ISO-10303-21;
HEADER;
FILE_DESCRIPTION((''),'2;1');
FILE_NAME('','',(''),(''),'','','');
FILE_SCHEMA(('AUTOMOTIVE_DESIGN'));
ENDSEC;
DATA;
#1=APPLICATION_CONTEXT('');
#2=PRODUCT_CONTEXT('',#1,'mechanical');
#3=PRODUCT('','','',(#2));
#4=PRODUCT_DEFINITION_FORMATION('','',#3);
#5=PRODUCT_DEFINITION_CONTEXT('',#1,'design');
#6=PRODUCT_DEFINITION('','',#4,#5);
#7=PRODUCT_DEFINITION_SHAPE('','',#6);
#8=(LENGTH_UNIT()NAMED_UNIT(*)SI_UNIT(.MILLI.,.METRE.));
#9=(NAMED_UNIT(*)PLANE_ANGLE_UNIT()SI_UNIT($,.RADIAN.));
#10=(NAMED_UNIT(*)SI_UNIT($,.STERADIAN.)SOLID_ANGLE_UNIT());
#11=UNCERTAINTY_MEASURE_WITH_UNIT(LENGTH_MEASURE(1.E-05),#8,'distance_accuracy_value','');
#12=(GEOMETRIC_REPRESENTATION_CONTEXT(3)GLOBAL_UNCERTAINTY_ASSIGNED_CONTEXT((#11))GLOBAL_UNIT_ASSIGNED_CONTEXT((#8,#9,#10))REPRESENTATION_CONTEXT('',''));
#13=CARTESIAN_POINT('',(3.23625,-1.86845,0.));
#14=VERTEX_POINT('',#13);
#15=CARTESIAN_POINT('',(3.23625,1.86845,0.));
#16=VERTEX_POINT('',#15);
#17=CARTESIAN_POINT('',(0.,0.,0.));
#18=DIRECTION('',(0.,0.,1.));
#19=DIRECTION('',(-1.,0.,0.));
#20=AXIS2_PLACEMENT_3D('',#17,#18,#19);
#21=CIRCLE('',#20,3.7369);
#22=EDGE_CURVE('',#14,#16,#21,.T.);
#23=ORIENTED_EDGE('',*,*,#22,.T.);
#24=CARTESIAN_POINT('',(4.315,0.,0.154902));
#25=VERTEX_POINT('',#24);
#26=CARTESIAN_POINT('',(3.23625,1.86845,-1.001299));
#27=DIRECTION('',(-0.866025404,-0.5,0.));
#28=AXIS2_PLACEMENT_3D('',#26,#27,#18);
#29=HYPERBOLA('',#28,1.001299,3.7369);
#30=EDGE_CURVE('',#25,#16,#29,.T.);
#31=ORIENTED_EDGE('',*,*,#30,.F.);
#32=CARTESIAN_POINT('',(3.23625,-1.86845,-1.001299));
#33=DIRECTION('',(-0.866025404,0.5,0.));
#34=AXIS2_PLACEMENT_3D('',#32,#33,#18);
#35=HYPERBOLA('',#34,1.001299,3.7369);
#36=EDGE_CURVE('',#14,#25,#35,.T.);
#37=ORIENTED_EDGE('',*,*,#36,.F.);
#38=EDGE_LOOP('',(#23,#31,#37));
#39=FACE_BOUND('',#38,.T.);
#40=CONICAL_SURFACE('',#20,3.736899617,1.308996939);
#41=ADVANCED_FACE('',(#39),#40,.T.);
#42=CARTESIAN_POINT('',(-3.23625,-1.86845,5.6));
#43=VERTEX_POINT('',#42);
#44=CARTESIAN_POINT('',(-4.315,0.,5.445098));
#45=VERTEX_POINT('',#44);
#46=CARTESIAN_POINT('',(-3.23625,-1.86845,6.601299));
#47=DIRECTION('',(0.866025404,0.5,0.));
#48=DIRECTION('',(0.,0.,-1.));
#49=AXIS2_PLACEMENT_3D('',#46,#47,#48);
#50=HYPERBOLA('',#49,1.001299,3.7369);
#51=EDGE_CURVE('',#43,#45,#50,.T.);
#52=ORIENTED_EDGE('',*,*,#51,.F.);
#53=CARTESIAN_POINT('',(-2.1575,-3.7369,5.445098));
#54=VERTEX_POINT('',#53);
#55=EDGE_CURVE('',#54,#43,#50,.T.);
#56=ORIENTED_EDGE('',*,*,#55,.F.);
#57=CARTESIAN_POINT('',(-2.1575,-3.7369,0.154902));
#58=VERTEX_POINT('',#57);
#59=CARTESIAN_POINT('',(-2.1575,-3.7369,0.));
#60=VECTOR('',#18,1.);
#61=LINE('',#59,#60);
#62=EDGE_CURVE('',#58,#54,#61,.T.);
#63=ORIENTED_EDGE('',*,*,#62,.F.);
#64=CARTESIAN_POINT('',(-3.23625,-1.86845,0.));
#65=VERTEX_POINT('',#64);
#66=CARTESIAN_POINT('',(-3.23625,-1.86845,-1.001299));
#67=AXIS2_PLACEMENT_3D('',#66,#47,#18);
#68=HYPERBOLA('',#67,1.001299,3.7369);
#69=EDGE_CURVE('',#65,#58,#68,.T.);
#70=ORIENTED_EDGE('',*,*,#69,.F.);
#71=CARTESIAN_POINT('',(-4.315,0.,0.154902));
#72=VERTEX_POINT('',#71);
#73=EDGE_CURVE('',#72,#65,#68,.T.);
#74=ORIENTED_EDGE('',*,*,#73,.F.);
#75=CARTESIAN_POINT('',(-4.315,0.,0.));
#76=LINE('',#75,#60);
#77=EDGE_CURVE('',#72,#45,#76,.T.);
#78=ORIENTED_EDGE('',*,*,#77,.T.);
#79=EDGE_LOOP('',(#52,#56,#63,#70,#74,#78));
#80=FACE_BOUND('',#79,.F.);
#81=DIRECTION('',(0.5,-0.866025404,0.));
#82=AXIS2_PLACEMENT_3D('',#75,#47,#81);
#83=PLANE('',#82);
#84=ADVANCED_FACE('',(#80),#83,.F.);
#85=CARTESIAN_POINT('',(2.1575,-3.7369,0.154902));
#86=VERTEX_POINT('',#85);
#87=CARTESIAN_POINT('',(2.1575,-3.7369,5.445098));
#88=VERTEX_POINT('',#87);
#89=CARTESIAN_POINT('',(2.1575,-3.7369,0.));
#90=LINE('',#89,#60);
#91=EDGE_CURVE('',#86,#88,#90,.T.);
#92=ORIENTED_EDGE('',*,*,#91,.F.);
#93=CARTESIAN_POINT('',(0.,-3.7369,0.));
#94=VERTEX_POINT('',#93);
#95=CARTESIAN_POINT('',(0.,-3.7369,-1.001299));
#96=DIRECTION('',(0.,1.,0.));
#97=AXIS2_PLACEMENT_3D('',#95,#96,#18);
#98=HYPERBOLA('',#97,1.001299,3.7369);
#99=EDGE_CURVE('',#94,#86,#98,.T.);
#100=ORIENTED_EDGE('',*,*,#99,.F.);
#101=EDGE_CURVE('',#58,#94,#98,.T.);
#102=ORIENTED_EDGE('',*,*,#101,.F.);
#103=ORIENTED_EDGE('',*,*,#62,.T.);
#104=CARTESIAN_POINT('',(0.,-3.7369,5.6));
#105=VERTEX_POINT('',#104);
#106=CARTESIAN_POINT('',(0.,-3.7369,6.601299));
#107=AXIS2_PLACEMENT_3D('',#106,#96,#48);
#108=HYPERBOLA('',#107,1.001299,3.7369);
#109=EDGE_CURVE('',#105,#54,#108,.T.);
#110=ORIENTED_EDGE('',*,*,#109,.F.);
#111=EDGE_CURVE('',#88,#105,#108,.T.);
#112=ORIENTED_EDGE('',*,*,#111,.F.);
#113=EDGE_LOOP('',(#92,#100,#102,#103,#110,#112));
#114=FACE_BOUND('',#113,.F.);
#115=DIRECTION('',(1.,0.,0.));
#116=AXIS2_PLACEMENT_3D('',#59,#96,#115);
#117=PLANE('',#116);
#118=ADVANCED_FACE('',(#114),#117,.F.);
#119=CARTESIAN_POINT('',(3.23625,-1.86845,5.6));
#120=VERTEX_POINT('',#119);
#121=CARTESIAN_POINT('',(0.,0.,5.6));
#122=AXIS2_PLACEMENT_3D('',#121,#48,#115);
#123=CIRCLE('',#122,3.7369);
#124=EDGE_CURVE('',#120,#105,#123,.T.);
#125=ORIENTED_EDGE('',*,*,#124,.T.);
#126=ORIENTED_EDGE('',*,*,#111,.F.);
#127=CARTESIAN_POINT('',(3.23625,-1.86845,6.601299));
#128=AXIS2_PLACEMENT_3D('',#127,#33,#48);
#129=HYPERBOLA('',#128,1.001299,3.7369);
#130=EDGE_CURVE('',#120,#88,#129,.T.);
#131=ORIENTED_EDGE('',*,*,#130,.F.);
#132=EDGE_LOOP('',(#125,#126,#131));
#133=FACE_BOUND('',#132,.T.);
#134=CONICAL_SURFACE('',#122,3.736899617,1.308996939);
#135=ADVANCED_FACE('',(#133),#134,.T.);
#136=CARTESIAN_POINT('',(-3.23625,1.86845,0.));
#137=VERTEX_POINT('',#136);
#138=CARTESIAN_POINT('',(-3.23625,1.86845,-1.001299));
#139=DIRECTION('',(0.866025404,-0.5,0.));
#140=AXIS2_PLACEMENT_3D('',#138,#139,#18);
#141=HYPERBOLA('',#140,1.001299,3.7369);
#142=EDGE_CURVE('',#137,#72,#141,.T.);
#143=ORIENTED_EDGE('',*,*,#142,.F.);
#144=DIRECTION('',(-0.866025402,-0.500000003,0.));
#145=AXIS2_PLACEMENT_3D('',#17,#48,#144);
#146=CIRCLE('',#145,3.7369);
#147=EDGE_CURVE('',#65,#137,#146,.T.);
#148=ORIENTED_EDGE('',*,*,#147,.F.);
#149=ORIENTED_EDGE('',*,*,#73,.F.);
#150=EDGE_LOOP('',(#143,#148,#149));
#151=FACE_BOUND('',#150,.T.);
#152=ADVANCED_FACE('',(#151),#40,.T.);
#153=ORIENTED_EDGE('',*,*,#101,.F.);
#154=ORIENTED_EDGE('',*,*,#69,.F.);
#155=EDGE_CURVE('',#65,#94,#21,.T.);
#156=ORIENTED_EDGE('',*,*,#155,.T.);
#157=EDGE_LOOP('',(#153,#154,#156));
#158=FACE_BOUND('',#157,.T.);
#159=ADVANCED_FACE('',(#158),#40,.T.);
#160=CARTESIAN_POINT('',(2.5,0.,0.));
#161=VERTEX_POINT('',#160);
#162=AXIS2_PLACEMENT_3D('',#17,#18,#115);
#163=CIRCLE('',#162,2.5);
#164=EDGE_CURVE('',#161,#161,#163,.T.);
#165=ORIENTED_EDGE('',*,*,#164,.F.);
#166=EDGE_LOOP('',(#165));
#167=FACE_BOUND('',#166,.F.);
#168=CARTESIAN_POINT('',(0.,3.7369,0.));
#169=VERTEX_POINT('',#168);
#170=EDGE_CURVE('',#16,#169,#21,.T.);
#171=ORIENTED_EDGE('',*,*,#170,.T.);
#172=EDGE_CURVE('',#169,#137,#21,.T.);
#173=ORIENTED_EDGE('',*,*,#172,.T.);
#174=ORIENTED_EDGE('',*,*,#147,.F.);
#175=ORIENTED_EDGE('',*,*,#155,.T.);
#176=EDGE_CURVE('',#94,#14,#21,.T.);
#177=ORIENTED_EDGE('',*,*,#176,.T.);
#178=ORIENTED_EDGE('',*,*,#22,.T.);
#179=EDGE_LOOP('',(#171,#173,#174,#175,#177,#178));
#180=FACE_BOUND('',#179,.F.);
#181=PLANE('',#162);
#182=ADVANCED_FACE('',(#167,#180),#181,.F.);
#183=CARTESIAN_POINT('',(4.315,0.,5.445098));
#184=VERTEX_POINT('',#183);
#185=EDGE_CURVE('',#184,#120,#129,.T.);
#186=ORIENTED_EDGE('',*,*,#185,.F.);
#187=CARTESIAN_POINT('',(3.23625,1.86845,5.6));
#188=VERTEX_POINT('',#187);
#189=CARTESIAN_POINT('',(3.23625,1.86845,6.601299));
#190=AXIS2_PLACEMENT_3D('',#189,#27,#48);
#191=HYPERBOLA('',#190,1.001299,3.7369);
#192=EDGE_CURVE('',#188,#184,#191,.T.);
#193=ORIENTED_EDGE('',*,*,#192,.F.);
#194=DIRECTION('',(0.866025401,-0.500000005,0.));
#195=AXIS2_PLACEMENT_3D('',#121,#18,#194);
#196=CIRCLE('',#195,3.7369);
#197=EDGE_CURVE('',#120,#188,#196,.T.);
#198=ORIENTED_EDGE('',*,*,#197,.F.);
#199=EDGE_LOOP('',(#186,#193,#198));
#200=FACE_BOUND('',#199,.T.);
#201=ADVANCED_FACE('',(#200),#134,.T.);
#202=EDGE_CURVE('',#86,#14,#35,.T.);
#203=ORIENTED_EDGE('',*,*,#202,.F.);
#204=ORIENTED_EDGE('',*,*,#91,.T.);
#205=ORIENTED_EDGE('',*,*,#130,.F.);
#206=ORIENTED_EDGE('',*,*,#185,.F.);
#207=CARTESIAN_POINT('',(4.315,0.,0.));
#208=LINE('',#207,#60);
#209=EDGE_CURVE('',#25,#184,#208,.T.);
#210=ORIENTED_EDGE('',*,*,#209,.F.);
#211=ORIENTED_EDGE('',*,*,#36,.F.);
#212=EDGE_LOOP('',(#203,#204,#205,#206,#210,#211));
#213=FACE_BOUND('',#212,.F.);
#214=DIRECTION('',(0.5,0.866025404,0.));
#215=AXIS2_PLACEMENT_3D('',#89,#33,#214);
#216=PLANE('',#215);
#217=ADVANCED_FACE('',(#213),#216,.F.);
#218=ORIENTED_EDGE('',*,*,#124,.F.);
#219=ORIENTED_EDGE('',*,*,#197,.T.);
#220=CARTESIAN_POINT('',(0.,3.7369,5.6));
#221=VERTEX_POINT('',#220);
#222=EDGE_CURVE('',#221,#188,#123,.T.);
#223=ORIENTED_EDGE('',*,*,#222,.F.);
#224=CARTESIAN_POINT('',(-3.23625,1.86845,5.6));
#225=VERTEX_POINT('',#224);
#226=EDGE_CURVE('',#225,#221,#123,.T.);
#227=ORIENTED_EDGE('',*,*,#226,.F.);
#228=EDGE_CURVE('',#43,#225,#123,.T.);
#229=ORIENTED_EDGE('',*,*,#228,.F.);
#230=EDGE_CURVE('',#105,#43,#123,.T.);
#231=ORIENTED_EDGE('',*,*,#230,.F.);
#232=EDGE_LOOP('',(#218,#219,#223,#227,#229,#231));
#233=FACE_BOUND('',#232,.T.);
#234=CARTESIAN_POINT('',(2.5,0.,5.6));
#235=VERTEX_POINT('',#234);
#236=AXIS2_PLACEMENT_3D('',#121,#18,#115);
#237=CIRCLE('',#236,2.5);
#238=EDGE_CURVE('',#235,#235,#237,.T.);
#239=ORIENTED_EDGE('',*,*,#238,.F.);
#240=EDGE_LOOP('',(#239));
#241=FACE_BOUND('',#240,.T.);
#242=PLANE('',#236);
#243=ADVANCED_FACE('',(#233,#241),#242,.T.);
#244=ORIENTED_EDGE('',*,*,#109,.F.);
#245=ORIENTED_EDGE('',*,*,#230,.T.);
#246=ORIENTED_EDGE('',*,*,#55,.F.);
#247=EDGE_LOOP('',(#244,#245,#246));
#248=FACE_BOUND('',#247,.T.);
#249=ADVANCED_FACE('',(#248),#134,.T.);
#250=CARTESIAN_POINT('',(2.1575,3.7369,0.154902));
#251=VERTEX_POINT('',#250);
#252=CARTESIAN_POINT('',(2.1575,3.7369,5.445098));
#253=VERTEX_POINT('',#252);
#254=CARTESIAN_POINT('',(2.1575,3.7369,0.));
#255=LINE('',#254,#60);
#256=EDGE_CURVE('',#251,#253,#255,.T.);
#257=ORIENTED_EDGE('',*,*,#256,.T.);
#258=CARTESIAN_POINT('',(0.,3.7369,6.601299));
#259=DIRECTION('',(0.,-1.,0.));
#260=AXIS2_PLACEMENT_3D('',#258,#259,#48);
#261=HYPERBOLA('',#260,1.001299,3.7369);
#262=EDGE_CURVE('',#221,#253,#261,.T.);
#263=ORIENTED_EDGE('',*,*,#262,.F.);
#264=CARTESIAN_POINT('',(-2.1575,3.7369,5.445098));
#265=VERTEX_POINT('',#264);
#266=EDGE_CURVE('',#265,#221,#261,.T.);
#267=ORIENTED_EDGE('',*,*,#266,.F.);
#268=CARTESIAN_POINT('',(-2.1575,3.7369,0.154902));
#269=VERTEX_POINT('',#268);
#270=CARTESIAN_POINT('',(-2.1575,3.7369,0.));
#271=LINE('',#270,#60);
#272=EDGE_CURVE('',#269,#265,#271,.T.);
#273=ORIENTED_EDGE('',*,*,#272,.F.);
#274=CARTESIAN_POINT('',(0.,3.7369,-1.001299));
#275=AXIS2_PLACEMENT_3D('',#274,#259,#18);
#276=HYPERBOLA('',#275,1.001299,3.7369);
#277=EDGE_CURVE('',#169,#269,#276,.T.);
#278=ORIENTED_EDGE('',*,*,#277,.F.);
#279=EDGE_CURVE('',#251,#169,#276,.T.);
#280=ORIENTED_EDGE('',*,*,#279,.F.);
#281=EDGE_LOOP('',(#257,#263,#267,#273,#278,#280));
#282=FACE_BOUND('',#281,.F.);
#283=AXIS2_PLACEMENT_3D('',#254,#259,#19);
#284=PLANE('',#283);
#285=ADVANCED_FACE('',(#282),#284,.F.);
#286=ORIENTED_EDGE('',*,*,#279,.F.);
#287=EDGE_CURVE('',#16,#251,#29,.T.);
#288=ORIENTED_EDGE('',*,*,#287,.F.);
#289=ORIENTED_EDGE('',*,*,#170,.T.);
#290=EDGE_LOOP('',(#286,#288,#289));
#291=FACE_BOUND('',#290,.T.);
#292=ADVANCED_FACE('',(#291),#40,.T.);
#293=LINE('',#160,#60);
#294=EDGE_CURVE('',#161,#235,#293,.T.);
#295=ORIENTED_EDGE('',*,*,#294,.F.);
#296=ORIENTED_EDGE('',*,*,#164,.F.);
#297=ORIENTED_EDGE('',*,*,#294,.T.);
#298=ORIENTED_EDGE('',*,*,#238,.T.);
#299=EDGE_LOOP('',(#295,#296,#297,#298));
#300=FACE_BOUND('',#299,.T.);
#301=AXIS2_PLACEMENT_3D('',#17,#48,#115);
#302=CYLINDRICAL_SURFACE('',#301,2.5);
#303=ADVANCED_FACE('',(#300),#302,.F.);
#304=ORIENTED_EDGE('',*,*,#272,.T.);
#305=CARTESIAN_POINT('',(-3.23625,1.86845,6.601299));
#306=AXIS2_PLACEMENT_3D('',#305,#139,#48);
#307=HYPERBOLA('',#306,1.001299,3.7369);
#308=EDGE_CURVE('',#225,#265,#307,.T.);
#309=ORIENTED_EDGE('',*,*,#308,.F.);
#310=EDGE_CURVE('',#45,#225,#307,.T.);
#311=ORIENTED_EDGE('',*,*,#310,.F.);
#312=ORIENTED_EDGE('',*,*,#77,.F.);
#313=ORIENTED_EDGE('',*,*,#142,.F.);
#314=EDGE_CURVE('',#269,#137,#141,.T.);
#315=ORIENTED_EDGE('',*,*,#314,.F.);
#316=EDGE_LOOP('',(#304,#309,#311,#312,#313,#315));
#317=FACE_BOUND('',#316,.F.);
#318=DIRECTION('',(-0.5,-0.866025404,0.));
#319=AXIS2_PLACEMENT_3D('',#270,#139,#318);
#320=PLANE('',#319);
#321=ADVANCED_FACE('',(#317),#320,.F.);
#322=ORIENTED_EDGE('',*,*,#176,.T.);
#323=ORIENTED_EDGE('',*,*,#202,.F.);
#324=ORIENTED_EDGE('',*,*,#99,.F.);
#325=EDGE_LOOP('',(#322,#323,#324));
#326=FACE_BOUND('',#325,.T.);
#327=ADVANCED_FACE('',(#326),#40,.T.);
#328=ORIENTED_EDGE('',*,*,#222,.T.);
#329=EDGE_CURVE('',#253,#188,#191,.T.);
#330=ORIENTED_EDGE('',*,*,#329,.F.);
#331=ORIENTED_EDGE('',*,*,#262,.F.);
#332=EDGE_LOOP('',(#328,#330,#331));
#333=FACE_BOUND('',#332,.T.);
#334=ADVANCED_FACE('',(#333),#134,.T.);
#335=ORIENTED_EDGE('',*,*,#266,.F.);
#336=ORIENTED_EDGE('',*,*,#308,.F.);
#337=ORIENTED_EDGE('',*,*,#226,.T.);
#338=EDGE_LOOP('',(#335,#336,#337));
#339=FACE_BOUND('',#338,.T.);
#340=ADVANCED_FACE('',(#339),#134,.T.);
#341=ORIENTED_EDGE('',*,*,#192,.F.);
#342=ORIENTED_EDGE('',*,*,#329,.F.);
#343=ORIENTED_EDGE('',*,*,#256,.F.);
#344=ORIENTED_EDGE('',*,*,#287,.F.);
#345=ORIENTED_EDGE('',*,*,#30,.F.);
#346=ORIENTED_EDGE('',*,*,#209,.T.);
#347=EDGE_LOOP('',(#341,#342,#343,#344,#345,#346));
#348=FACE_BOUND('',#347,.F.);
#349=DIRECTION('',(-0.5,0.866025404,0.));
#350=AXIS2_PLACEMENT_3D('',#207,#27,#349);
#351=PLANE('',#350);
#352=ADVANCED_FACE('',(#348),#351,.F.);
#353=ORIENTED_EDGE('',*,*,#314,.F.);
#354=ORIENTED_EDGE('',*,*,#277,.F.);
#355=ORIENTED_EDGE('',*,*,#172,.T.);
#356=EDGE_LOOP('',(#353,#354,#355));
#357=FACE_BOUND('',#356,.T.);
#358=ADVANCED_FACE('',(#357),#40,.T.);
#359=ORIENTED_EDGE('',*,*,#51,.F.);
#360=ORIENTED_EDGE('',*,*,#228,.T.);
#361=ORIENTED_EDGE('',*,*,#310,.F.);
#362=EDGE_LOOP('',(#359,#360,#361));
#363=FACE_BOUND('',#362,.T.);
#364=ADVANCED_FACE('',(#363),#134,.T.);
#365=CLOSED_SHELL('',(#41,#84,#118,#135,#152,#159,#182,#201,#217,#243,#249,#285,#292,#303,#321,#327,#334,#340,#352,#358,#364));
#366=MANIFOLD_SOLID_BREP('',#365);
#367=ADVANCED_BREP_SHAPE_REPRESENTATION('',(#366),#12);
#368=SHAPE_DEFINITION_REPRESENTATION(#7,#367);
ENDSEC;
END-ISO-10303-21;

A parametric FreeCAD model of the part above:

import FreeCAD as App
import Part
import Sketcher

V = App.Vector
Q = App.Units.Quantity


def add_polygon(sketch, points):
    """Adds a closed chain of lines whose ends are joined by coincident constraints."""
    first, n = sketch.GeometryCount, len(points)
    for a, b in zip(points, points[1:] + points[:1]):
        sketch.addGeometry(Part.LineSegment(App.Vector(*a, 0), App.Vector(*b, 0)), False)
    for i in range(n):
        sketch.addConstraint(Sketcher.Constraint("Coincident", first + i, 2, first + (i + 1) % n, 1))

doc = App.newDocument("Part")
params = doc.addObject("Spreadsheet::Sheet", "Params")
for row, (alias, value) in enumerate([
    ("sketch1_diameter", "5 mm"),
    ("pad1_length", "5.6 mm"),
    ("sketch2_width", "296.81 mm"),
    ("pocket1_length", "38 mm"),
    ("pocket1_taper", "75 deg"),
    ("sketch3_width", "296.81 mm"),
    ("pocket2_length", "38 mm"),
    ("pocket2_taper", "75 deg"),
], start=1):
    params.set(f"A{row}", alias)
    params.set(f"B{row}", "=" + value)
    params.setAlias(f"B{row}", alias)

body = doc.addObject("PartDesign::Body", "Body")

# Sketch on XY plane
sketch1 = body.newObject("Sketcher::SketchObject", "Sketch")
sketch1.AttachmentSupport = (doc.getObject("XY_Plane"), [""])
sketch1.MapMode = "FlatFace"
add_polygon(sketch1, [(2.1575, 3.7369), (-2.1575, 3.7369), (-4.315, 0), (-2.1575, -3.7369), (2.1575, -3.7369), (4.315, 0)])  # lines 0-5
sketch1.addGeometry(Part.Circle(V(0, 0, 0), V(0, 0, 1), 2.5), False)  # 6
sketch1.addConstraint([
    Sketcher.Constraint("Horizontal", 0),
    Sketcher.Constraint("Horizontal", 3),
    Sketcher.Constraint("Coincident", 6, 3, -1, 1),
    Sketcher.Constraint("Symmetric", 0, 2, 3, 2, -1, 1),
    Sketcher.Constraint("Symmetric", 1, 2, 4, 2, -1, 1),
    Sketcher.Constraint("PointOnObject", 1, 2, -1),
    Sketcher.Constraint("Parallel", 2, 5),
    Sketcher.Constraint("Vertical", 0, 2, 2, 2),
    Sketcher.Constraint("Diameter", 6, 5.0),
    Sketcher.Constraint("Angle", 1, Q("-120 deg")),
    Sketcher.Constraint("DistanceX", 0, 2, 0, 1, 4.315),
    Sketcher.Constraint("DistanceX", 1, 2, 4, 2, 8.63),
])
sketch1.setExpression("Constraints[14]", "Params.sketch1_diameter")
pad1 = body.newObject("PartDesign::Pad", "Pad")
pad1.Profile = sketch1
pad1.setExpression("Length", "Params.pad1_length")

# Sketch on XY plane
sketch2 = body.newObject("Sketcher::SketchObject", "Sketch001")
sketch2.AttachmentSupport = (doc.getObject("XY_Plane"), [""])
sketch2.MapMode = "FlatFace"
add_polygon(sketch2, [(148.405, 147.827), (148.405, -147.827), (-148.405, -147.827), (-148.405, 147.827)])  # lines 0-3
sketch2.addGeometry(Part.Circle(V(0, 0, 0), V(0, 0, 1), 3.7369), False)  # 4
sketch2.addConstraint([
    Sketcher.Constraint("Vertical", 0),
    Sketcher.Constraint("Horizontal", 1),
    Sketcher.Constraint("Vertical", 2),
    Sketcher.Constraint("Horizontal", 3),
    Sketcher.Constraint("Coincident", 4, 3, -1, 1),
    Sketcher.Constraint("Symmetric", 0, 2, 2, 2, -1, 1),
    Sketcher.Constraint("Diameter", 4, 7.473799),
    Sketcher.Constraint("DistanceX", 1, 2, 1, 1, 296.81),
    Sketcher.Constraint("DistanceY", 0, 2, 0, 1, 295.654),
])
sketch2.setExpression("Constraints[11]", "Params.sketch2_width")
pocket1 = body.newObject("PartDesign::Pocket", "Pocket")
pocket1.Profile = sketch2
pocket1.setExpression("Length", "Params.pocket1_length")
pocket1.Reversed = True
pocket1.setExpression("TaperAngle", "Params.pocket1_taper")

# Sketch on XY plane
sketch3 = body.newObject("Sketcher::SketchObject", "Sketch002")
sketch3.AttachmentSupport = (doc.getObject("XY_Plane"), [""])
sketch3.MapMode = "FlatFace"
sketch3.AttachmentOffset = App.Placement(V(0, 0, 5.6), App.Rotation())
add_polygon(sketch3, [(-148.405, 147.827), (-148.405, -147.827), (148.405, -147.827), (148.405, 147.827)])  # lines 0-3
sketch3.addGeometry(Part.Circle(V(0, 0, 0), V(0, 0, 1), 3.7369), False)  # 4
sketch3.addConstraint([
    Sketcher.Constraint("Vertical", 0),
    Sketcher.Constraint("Horizontal", 1),
    Sketcher.Constraint("Vertical", 2),
    Sketcher.Constraint("Horizontal", 3),
    Sketcher.Constraint("Coincident", 4, 3, -1, 1),
    Sketcher.Constraint("Symmetric", 0, 2, 2, 2, -1, 1),
    Sketcher.Constraint("Diameter", 4, 7.473799),
    Sketcher.Constraint("DistanceX", 1, 1, 1, 2, 296.81),
    Sketcher.Constraint("DistanceY", 0, 2, 0, 1, 295.654),
])
sketch3.setExpression("Constraints[11]", "Params.sketch3_width")
pocket2 = body.newObject("PartDesign::Pocket", "Pocket001")
pocket2.Profile = sketch3
pocket2.setExpression("Length", "Params.pocket2_length")
pocket2.setExpression("TaperAngle", "Params.pocket2_taper")

doc.recompute()
